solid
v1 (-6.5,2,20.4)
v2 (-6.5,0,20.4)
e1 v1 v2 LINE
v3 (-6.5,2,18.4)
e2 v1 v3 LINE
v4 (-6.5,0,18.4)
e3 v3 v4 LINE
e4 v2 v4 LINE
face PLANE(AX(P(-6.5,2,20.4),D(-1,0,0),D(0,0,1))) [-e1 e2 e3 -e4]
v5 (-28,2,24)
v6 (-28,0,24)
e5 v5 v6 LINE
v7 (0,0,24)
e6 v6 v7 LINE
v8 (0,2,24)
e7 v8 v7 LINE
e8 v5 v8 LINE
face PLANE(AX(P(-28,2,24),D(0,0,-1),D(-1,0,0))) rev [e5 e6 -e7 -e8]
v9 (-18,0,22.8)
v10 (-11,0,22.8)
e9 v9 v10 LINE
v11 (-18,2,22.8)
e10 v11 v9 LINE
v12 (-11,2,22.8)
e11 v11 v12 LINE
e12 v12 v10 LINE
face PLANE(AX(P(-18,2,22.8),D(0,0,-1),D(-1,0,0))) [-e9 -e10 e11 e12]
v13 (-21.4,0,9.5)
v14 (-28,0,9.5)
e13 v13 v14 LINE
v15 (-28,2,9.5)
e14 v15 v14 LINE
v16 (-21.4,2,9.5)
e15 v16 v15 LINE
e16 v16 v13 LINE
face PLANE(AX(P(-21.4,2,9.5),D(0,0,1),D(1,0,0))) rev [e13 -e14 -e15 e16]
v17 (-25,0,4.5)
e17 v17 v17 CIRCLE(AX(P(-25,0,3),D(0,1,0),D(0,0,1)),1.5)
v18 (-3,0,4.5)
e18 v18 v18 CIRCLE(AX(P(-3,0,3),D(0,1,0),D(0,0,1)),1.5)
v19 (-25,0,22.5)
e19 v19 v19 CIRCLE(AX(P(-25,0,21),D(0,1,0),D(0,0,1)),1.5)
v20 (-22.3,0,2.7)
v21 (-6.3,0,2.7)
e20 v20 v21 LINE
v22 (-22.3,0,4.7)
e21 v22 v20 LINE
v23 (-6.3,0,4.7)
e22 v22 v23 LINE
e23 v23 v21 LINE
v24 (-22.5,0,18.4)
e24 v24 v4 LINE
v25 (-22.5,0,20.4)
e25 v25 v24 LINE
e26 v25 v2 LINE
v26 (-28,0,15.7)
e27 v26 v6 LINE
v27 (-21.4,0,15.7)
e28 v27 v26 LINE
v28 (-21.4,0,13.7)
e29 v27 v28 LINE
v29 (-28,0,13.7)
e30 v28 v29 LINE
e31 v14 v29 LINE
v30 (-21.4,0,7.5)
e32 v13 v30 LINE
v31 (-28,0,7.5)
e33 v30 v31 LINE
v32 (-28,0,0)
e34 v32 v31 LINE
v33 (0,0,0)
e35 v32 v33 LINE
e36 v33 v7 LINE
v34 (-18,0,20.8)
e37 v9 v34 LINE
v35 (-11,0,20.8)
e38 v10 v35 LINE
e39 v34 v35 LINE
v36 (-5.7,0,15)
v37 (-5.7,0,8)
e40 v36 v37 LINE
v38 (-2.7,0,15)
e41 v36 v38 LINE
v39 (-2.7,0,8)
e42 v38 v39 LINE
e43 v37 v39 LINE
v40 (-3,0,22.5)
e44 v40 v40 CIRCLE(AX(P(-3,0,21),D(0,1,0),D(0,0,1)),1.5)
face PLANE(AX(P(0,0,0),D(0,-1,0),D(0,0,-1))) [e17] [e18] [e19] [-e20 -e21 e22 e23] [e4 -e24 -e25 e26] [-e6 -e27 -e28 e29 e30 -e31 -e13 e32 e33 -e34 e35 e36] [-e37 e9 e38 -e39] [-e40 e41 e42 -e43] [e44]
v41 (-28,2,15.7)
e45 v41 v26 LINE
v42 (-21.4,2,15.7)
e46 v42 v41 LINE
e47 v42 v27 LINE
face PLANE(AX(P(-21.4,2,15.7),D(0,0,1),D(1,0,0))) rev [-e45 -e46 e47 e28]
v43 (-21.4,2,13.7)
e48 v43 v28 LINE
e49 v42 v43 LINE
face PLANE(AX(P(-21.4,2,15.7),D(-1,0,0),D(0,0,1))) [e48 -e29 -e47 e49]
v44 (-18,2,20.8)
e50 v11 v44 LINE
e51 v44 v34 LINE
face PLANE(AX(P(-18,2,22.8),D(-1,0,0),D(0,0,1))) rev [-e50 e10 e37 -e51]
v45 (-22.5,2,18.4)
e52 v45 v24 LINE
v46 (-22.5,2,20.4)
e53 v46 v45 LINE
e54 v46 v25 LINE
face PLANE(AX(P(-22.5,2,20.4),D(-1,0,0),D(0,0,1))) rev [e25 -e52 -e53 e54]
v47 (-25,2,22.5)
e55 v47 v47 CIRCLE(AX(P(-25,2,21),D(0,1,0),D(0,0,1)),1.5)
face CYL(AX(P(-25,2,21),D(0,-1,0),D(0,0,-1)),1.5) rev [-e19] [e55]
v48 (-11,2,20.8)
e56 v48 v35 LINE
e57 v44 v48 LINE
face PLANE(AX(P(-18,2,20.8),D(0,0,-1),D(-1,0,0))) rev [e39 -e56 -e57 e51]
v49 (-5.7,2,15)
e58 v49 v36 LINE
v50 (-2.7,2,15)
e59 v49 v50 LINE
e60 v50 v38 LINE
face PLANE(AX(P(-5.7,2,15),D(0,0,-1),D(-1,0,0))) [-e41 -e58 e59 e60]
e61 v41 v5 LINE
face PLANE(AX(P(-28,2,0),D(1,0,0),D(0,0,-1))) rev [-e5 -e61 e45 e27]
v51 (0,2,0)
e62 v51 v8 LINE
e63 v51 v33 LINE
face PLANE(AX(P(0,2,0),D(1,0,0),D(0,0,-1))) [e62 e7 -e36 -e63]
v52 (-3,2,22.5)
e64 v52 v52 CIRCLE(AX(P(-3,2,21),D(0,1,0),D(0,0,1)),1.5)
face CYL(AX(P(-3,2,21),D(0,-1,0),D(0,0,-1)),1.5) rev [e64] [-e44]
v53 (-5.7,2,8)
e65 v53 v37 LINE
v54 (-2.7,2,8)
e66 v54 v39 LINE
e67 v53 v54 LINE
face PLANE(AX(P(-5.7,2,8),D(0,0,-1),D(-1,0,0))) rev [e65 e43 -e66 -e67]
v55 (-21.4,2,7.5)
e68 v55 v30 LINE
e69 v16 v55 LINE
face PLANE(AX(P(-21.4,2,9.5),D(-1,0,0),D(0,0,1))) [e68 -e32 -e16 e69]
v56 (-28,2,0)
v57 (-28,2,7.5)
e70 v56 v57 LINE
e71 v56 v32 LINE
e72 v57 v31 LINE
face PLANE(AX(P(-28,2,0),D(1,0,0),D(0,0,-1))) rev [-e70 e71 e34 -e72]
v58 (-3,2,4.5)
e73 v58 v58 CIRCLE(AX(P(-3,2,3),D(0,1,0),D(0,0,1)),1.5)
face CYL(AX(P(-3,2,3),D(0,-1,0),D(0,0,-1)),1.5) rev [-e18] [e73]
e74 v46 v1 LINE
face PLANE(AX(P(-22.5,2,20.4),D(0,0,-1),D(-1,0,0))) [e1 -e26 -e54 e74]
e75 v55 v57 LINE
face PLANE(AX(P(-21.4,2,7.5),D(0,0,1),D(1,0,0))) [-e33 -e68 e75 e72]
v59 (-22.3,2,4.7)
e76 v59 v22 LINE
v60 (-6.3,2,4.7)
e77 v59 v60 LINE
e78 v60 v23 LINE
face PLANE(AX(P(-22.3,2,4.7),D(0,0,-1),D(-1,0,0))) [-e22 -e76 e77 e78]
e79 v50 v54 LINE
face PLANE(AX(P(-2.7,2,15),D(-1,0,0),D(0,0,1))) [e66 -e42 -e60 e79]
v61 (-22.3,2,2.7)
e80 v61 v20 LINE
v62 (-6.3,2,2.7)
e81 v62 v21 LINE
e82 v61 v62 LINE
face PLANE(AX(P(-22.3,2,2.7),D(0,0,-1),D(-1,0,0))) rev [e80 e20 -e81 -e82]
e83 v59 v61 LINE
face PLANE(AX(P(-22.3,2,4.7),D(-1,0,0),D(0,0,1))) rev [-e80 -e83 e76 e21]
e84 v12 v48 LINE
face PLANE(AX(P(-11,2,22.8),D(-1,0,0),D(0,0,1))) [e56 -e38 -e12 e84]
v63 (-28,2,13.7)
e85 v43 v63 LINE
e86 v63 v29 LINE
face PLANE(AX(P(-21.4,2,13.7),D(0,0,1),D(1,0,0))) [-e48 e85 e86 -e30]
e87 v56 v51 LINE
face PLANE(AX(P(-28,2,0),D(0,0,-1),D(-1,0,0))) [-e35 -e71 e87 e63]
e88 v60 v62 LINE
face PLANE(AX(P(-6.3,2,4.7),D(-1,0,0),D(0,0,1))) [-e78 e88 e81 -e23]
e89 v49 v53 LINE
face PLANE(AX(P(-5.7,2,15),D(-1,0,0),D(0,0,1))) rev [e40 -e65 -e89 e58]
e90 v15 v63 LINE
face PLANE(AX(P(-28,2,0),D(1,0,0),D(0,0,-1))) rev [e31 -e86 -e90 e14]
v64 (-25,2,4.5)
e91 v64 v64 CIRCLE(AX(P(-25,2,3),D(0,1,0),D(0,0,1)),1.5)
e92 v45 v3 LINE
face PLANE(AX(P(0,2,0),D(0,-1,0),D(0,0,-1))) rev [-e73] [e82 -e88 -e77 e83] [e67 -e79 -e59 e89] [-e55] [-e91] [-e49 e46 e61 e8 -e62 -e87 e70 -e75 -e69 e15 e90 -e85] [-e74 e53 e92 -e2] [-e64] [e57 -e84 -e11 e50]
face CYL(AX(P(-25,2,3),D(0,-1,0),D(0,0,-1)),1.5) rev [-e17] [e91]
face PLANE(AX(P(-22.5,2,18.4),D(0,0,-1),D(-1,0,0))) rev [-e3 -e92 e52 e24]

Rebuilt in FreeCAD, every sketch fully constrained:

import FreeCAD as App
import Part
import Sketcher

V = App.Vector
Q = App.Units.Quantity

doc = App.newDocument("Part")
body = doc.addObject("PartDesign::Body", "Body")

# Sketch on XZ plane
sketch1 = doc.addObject("Sketcher::SketchObject", "Sketch")
body.addObject(sketch1)
sketch1.AttachmentSupport = (doc.XZ_Plane, [""])
sketch1.MapMode = "FlatFace"
sketch1.addGeometry([
    Part.LineSegment(V(-28, 0, 0), V(-28, 24, 0)),
    Part.LineSegment(V(-28, 24, 0), V(0, 24, 0)),
    Part.LineSegment(V(0, 24, 0), V(0, 0, 0)),
    Part.LineSegment(V(0, 0, 0), V(-28, 0, 0)),
], False)
sketch1.addConstraint([
    Sketcher.Constraint("Coincident", 0, 2, 1, 1),
    Sketcher.Constraint("Coincident", 1, 2, 2, 1),
    Sketcher.Constraint("Coincident", 2, 2, 3, 1),
    Sketcher.Constraint("Coincident", 3, 2, 0, 1),
    Sketcher.Constraint("Vertical", 0),
    Sketcher.Constraint("Horizontal", 1),
    Sketcher.Constraint("Vertical", 2),
    Sketcher.Constraint("Horizontal", 3),
    Sketcher.Constraint("Coincident", 2, 2, -1, 1),
    Sketcher.Constraint("DistanceX", 1, 1, 1, 2, Q("28 mm")),
    Sketcher.Constraint("DistanceY", 0, 1, 0, 2, Q("24 mm")),
])
pad1 = doc.addObject("PartDesign::Pad", "Pad")
body.addObject(pad1)
pad1.Profile = sketch1
pad1.Length = 2
pad1.Reversed = True

# Sketch on XZ plane
sketch2 = doc.addObject("Sketcher::SketchObject", "Sketch001")
body.addObject(sketch2)
sketch2.AttachmentSupport = (doc.XZ_Plane, [""])
sketch2.MapMode = "FlatFace"
sketch2.addGeometry([
    Part.Circle(V(-25, 3, 0), V(0, 0, 1), 1.5),  # 0
    Part.Circle(V(-3, 3, 0), V(0, 0, 1), 1.5),  # 1
    Part.Circle(V(-25, 21, 0), V(0, 0, 1), 1.5),  # 2
    Part.Circle(V(-3, 21, 0), V(0, 0, 1), 1.5),  # 3
    Part.LineSegment(V(-18, 20.8, 0), V(-18, 22.8, 0)),  # 4
    Part.LineSegment(V(-18, 22.8, 0), V(-11, 22.8, 0)),  # 5
    Part.LineSegment(V(-11, 22.8, 0), V(-11, 20.8, 0)),  # 6
    Part.LineSegment(V(-11, 20.8, 0), V(-18, 20.8, 0)),  # 7
    Part.LineSegment(V(-5.7, 8, 0), V(-5.7, 15, 0)),  # 8
    Part.LineSegment(V(-5.7, 15, 0), V(-2.7, 15, 0)),  # 9
    Part.LineSegment(V(-2.7, 15, 0), V(-2.7, 8, 0)),  # 10
    Part.LineSegment(V(-2.7, 8, 0), V(-5.7, 8, 0)),  # 11
    Part.LineSegment(V(-22.3, 2.7, 0), V(-22.3, 4.7, 0)),  # 12
    Part.LineSegment(V(-22.3, 4.7, 0), V(-6.3, 4.7, 0)),  # 13
    Part.LineSegment(V(-6.3, 4.7, 0), V(-6.3, 2.7, 0)),  # 14
    Part.LineSegment(V(-6.3, 2.7, 0), V(-22.3, 2.7, 0)),  # 15
    Part.LineSegment(V(-28, 13.7, 0), V(-28, 15.7, 0)),  # 16
    Part.LineSegment(V(-28, 15.7, 0), V(-21.4, 15.7, 0)),  # 17
    Part.LineSegment(V(-21.4, 15.7, 0), V(-21.4, 13.7, 0)),  # 18
    Part.LineSegment(V(-21.4, 13.7, 0), V(-28, 13.7, 0)),  # 19
    Part.LineSegment(V(-28, 7.5, 0), V(-28, 9.5, 0)),  # 20
    Part.LineSegment(V(-28, 9.5, 0), V(-21.4, 9.5, 0)),  # 21
    Part.LineSegment(V(-21.4, 9.5, 0), V(-21.4, 7.5, 0)),  # 22
    Part.LineSegment(V(-21.4, 7.5, 0), V(-28, 7.5, 0)),  # 23
    Part.LineSegment(V(-22.5, 18.4, 0), V(-22.5, 20.4, 0)),  # 24
    Part.LineSegment(V(-22.5, 20.4, 0), V(-6.5, 20.4, 0)),  # 25
    Part.LineSegment(V(-6.5, 20.4, 0), V(-6.5, 18.4, 0)),  # 26
    Part.LineSegment(V(-6.5, 18.4, 0), V(-22.5, 18.4, 0)),  # 27
], False)
sketch2.addConstraint([
    Sketcher.Constraint("Coincident", 4, 2, 5, 1),
    Sketcher.Constraint("Coincident", 5, 2, 6, 1),
    Sketcher.Constraint("Coincident", 6, 2, 7, 1),
    Sketcher.Constraint("Coincident", 7, 2, 4, 1),
    Sketcher.Constraint("Coincident", 8, 2, 9, 1),
    Sketcher.Constraint("Coincident", 9, 2, 10, 1),
    Sketcher.Constraint("Coincident", 10, 2, 11, 1),
    Sketcher.Constraint("Coincident", 11, 2, 8, 1),
    Sketcher.Constraint("Coincident", 12, 2, 13, 1),
    Sketcher.Constraint("Coincident", 13, 2, 14, 1),
    Sketcher.Constraint("Coincident", 14, 2, 15, 1),
    Sketcher.Constraint("Coincident", 15, 2, 12, 1),
    Sketcher.Constraint("Coincident", 16, 2, 17, 1),
    Sketcher.Constraint("Coincident", 17, 2, 18, 1),
    Sketcher.Constraint("Coincident", 18, 2, 19, 1),
    Sketcher.Constraint("Coincident", 19, 2, 16, 1),
    Sketcher.Constraint("Coincident", 20, 2, 21, 1),
    Sketcher.Constraint("Coincident", 21, 2, 22, 1),
    Sketcher.Constraint("Coincident", 22, 2, 23, 1),
    Sketcher.Constraint("Coincident", 23, 2, 20, 1),
    Sketcher.Constraint("Coincident", 24, 2, 25, 1),
    Sketcher.Constraint("Coincident", 25, 2, 26, 1),
    Sketcher.Constraint("Coincident", 26, 2, 27, 1),
    Sketcher.Constraint("Coincident", 27, 2, 24, 1),
    Sketcher.Constraint("Vertical", 4),
    Sketcher.Constraint("Horizontal", 5),
    Sketcher.Constraint("Vertical", 6),
    Sketcher.Constraint("Horizontal", 7),
    Sketcher.Constraint("Vertical", 8),
    Sketcher.Constraint("Horizontal", 9),
    Sketcher.Constraint("Vertical", 10),
    Sketcher.Constraint("Horizontal", 11),
    Sketcher.Constraint("Vertical", 12),
    Sketcher.Constraint("Horizontal", 13),
    Sketcher.Constraint("Vertical", 14),
    Sketcher.Constraint("Horizontal", 15),
    Sketcher.Constraint("Vertical", 16),
    Sketcher.Constraint("Horizontal", 17),
    Sketcher.Constraint("Vertical", 18),
    Sketcher.Constraint("Horizontal", 19),
    Sketcher.Constraint("Vertical", 20),
    Sketcher.Constraint("Horizontal", 21),
    Sketcher.Constraint("Vertical", 22),
    Sketcher.Constraint("Horizontal", 23),
    Sketcher.Constraint("Vertical", 24),
    Sketcher.Constraint("Horizontal", 25),
    Sketcher.Constraint("Vertical", 26),
    Sketcher.Constraint("Horizontal", 27),
    Sketcher.Constraint("Equal", 0, 1),
    Sketcher.Constraint("Equal", 1, 2),
    Sketcher.Constraint("Equal", 2, 3),
    Sketcher.Constraint("Horizontal", 0, 3, 1, 3),
    Sketcher.Constraint("Horizontal", 2, 3, 3, 3),
    Sketcher.Constraint("Vertical", 0, 3, 2, 3),
    Sketcher.Constraint("Vertical", 1, 3, 3, 3),
    Sketcher.Constraint("Vertical", 19, 2, 20, 2),
    Sketcher.Constraint("Vertical", 18, 2, 21, 2),
    Sketcher.Constraint("Equal", 15, 25),
    Sketcher.Constraint("Equal", 7, 8),
    Sketcher.Constraint("Equal", 6, 12),
    Sketcher.Constraint("Equal", 14, 16),
    Sketcher.Constraint("Equal", 18, 20),
    Sketcher.Constraint("Equal", 22, 24),
    Sketcher.Constraint("Diameter", 0, Q("3 mm")),
    Sketcher.Constraint("DistanceX", 5, 1, 5, 2, Q("7 mm")),
    Sketcher.Constraint("DistanceX", 9, 1, 9, 2, Q("3 mm")),
    Sketcher.Constraint("DistanceX", 13, 1, 13, 2, Q("16 mm")),
    Sketcher.Constraint("DistanceY", 4, 1, 4, 2, Q("2 mm")),
    Sketcher.Constraint("DistanceX", 17, 1, 17, 2, Q("6.6 mm")),
    Sketcher.Constraint("DistanceX", 0, 3, -1, 1, Q("25 mm")),
    Sketcher.Constraint("DistanceY", -1, 1, 0, 3, Q("3 mm")),
    Sketcher.Constraint("DistanceX", 1, 3, -1, 1, Q("3 mm")),
    Sketcher.Constraint("DistanceY", -1, 1, 2, 3, Q("21 mm")),
    Sketcher.Constraint("DistanceX", 4, 2, -1, 1, Q("18 mm")),
    Sketcher.Constraint("DistanceY", -1, 1, 8, 2, Q("15 mm")),
    Sketcher.Constraint("DistanceX", 16, 2, -1, 1, Q("28 mm")),
    Sketcher.Constraint("DistanceY", 12, 2, 16, 2, Q("11 mm")),
    Sketcher.Constraint("DistanceY", -1, 1, 4, 2, Q("22.8 mm")),
    Sketcher.Constraint("DistanceX", 8, 2, -1, 1, Q("5.7 mm")),
    Sketcher.Constraint("DistanceX", 12, 2, -1, 1, Q("22.3 mm")),
    Sketcher.Constraint("DistanceY", -1, 1, 12, 2, Q("4.7 mm")),
    Sketcher.Constraint("DistanceY", -1, 1, 20, 2, Q("9.5 mm")),
    Sketcher.Constraint("DistanceX", 24, 2, -1, 1, Q("22.5 mm")),
    Sketcher.Constraint("DistanceY", -1, 1, 24, 2, Q("20.4 mm")),
])
pocket1 = doc.addObject("PartDesign::Pocket", "Pocket")
body.addObject(pocket1)
pocket1.Profile = sketch2
pocket1.Type = "ThroughAll"

doc.recompute()
